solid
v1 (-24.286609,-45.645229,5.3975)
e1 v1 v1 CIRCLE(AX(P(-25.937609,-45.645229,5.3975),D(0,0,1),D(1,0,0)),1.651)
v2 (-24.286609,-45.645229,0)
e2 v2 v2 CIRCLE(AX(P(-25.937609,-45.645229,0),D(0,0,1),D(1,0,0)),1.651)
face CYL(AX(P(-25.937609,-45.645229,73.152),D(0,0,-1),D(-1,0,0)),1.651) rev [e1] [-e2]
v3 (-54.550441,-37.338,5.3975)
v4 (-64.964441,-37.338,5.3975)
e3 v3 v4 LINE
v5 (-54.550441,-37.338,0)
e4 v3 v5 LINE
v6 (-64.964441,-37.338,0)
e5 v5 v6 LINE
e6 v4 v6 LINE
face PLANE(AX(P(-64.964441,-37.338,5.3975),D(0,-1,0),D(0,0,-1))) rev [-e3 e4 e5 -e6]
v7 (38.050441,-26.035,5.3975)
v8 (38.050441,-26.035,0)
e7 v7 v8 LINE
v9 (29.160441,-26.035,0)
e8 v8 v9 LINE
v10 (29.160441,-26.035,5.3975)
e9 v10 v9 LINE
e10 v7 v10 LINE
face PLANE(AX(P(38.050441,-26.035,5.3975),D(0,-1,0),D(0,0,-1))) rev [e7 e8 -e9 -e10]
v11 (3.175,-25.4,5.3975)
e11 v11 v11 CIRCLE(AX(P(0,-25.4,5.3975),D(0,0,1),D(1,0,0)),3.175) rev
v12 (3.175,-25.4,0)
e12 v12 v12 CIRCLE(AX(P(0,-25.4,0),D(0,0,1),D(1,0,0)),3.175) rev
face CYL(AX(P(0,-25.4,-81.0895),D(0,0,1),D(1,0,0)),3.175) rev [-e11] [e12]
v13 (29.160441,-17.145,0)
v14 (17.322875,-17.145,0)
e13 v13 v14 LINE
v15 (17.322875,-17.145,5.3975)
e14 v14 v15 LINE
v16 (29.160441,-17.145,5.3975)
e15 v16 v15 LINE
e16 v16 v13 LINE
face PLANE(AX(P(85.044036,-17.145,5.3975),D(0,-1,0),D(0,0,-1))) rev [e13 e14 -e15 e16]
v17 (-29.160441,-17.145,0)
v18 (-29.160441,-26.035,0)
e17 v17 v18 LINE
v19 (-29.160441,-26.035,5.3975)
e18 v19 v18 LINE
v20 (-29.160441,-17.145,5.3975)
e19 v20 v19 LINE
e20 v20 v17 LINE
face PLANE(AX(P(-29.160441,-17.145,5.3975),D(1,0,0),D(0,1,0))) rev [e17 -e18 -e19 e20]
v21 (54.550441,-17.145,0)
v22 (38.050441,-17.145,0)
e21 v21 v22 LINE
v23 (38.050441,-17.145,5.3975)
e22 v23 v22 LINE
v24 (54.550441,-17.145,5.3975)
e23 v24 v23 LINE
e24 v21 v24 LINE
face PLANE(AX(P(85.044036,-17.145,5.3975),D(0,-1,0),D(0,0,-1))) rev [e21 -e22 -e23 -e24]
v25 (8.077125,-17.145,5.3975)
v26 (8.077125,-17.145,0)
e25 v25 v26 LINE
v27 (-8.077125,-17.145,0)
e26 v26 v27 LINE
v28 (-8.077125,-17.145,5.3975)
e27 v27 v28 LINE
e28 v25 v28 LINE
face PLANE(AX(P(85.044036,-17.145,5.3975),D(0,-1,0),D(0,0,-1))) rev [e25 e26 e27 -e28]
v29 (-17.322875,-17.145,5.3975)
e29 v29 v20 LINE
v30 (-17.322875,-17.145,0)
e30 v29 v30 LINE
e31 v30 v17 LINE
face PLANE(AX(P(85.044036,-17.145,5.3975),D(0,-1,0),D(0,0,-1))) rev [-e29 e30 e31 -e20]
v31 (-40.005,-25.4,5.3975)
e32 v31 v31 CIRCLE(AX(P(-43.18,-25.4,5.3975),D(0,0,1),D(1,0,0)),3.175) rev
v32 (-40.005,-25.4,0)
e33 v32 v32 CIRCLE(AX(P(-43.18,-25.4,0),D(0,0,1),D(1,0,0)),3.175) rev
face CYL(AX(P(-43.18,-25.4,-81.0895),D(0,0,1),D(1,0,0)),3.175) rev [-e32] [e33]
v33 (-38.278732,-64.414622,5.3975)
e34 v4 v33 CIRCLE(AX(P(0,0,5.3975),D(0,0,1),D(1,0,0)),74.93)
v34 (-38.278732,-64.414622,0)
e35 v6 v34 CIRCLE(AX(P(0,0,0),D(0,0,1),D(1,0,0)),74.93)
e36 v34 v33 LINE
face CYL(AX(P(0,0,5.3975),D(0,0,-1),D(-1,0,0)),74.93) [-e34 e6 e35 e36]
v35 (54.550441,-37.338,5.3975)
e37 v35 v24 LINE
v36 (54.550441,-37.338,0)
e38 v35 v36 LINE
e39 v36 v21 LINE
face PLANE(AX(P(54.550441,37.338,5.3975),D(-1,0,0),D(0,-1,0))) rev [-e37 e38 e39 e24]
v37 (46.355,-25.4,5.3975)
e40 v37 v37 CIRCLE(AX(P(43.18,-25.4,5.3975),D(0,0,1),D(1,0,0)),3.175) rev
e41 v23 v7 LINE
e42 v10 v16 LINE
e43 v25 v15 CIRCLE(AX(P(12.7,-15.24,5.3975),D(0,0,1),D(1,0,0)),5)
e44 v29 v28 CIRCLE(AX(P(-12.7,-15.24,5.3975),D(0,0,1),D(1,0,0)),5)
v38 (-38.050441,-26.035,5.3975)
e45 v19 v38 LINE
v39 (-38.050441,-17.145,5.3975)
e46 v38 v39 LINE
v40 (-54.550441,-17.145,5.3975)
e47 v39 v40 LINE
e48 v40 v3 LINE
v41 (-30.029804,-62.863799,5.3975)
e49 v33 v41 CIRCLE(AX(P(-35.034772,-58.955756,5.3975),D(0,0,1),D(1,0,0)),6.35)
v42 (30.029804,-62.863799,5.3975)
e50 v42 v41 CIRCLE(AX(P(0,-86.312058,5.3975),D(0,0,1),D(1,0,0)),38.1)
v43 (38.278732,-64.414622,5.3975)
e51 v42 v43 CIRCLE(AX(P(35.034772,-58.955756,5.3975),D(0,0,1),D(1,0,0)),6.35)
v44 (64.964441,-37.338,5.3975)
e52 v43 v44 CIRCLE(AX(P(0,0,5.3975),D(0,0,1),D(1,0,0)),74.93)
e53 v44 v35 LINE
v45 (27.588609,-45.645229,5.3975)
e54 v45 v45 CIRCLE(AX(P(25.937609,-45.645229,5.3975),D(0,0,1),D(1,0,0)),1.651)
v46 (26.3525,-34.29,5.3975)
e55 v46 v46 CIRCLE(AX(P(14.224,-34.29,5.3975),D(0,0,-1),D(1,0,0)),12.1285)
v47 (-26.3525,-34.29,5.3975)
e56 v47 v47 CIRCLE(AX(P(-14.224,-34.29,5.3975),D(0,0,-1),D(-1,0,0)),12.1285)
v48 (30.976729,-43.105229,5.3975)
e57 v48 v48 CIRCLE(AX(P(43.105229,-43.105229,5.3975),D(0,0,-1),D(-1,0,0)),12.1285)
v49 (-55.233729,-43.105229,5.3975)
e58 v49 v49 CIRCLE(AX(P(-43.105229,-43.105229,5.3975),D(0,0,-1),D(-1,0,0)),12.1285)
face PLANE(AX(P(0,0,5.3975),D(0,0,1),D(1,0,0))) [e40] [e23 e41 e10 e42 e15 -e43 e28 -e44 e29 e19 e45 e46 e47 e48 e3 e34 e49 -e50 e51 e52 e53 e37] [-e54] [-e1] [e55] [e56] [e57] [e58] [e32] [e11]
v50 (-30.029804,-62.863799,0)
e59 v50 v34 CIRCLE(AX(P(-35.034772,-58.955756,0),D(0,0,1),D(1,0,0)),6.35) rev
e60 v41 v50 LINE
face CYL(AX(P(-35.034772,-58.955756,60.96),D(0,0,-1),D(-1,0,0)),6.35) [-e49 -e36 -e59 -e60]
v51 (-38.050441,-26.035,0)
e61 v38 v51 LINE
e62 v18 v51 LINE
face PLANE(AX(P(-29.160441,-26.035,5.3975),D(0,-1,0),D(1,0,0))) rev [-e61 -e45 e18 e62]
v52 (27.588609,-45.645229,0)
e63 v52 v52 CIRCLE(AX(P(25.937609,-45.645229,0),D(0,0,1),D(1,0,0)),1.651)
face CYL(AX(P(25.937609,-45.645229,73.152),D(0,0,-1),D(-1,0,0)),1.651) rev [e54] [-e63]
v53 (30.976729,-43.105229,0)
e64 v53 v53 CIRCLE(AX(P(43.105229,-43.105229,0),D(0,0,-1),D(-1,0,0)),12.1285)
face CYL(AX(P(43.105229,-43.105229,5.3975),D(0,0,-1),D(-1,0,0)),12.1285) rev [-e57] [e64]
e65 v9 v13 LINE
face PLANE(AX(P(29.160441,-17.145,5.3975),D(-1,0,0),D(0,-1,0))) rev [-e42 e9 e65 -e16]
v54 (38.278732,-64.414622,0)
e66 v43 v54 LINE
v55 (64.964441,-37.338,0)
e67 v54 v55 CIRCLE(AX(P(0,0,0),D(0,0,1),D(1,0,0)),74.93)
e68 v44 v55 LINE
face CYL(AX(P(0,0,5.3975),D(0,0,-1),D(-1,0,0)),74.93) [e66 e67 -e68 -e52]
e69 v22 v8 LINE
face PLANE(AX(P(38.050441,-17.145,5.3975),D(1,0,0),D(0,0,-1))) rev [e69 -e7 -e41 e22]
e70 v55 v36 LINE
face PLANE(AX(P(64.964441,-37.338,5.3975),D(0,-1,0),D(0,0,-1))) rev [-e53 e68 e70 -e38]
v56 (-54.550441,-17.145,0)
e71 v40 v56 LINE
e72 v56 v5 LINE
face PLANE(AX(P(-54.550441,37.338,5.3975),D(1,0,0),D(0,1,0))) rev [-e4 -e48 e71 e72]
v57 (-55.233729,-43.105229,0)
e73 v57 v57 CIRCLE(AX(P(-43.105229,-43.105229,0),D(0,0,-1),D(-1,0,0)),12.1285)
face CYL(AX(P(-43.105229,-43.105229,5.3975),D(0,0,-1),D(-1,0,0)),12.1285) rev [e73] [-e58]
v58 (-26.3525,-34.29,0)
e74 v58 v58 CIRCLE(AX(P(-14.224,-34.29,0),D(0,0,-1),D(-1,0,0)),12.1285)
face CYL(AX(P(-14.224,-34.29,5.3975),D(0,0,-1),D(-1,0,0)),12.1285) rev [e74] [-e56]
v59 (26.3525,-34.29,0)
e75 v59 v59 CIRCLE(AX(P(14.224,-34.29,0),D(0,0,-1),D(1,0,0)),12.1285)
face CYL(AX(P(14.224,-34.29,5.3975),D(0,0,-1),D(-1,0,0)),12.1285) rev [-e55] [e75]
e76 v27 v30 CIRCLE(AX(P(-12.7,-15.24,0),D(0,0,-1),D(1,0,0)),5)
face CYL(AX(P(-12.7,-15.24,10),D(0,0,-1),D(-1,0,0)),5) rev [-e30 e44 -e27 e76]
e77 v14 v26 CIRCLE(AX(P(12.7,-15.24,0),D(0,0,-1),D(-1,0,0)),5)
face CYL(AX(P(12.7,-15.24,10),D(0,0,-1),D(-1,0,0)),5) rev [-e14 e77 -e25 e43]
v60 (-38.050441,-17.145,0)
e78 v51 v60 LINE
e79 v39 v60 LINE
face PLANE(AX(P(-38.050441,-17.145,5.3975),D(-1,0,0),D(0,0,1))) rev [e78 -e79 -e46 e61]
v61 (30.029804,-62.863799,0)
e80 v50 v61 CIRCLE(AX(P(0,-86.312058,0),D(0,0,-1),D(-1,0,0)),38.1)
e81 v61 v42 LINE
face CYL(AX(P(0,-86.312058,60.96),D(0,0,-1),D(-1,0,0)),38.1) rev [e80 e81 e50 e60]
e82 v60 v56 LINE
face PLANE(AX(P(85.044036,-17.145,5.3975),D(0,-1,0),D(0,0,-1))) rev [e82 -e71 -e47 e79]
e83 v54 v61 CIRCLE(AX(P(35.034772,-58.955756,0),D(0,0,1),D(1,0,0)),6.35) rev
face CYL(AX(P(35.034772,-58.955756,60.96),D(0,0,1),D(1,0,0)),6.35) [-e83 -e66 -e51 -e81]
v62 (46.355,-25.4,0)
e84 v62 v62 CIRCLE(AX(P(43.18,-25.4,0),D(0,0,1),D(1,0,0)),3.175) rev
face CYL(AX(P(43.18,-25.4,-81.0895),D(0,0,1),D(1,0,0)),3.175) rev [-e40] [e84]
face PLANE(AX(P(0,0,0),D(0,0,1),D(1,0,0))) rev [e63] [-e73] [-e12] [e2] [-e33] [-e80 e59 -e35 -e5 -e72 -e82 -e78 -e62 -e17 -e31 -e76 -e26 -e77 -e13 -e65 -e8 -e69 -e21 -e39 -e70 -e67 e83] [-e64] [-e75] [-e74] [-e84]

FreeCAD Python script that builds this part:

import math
import FreeCAD as App
import Part
import Sketcher
Q = App.Units.Quantity


def edges_at(feature, points):
    """Names of the edges that pass closest to the given points."""
    edges = feature.Shape.Edges
    near = lambda p: min(range(len(edges)), key=lambda i: edges[i].distToShape(Part.Vertex(*p))[0])
    return sorted({f"Edge{near(p) + 1}" for p in points})

doc = App.newDocument("Part")
body = doc.addObject("PartDesign::Body", "Body")

# Sketch on XY plane
sketch1 = body.newObject("Sketcher::SketchObject", "Sketch")
sketch1.AttachmentSupport = (doc.getObject("XY_Plane"), [""])
sketch1.MapMode = "FlatFace"
sketch1.addGeometry([
    Part.LineSegment(App.Vector(-64.964441, 37.338, 0), App.Vector(-54.550441, 37.338, 0)),  # 0
    Part.LineSegment(App.Vector(-54.550441, 37.338, 0), App.Vector(-54.550441, -37.338, 0)),  # 1
    Part.LineSegment(App.Vector(-54.550441, -37.338, 0), App.Vector(-64.964441, -37.338, 0)),  # 2
    Part.ArcOfCircle(Part.Circle(App.Vector(0, 0, 0), App.Vector(0, 0, 1), 74.93), math.radians(-150.112071), math.radians(-29.887929)),  # 3
    Part.LineSegment(App.Vector(64.964441, -37.338, 0), App.Vector(54.550441, -37.338, 0)),  # 4
    Part.LineSegment(App.Vector(54.550441, -37.338, 0), App.Vector(54.550441, 37.338, 0)),  # 5
    Part.LineSegment(App.Vector(54.550441, 37.338, 0), App.Vector(64.964441, 37.338, 0)),  # 6
    Part.ArcOfCircle(Part.Circle(App.Vector(0, 0, 0), App.Vector(0, 0, 1), 74.93), math.radians(29.887929), math.radians(150.112071)),  # 7
    Part.Circle(App.Vector(-46.482, -11.049, 0), App.Vector(0, 0, 1), 1.651),  # 8
    Part.Circle(App.Vector(-21.08327, -10.795, 0), App.Vector(0, 0, 1), 1.651),  # 9
    Part.Circle(App.Vector(21.08327, -10.795, 0), App.Vector(0, 0, 1), 1.651),  # 10
    Part.Circle(App.Vector(46.482, -11.049, 0), App.Vector(0, 0, 1), 1.651),  # 11
    Part.Circle(App.Vector(-46.482, 11.049, 0), App.Vector(0, 0, 1), 1.651),  # 12
    Part.Circle(App.Vector(-21.08327, 10.795, 0), App.Vector(0, 0, 1), 1.651),  # 13
    Part.Circle(App.Vector(21.08327, 10.795, 0), App.Vector(0, 0, 1), 1.651),  # 14
    Part.Circle(App.Vector(46.482, 11.049, 0), App.Vector(0, 0, 1), 1.651),  # 15
], False)
sketch1.addConstraint([
    Sketcher.Constraint("Coincident", 0, 2, 1, 1),
    Sketcher.Constraint("Coincident", 1, 2, 2, 1),
    Sketcher.Constraint("Coincident", 2, 2, 3, 1),
    Sketcher.Constraint("Coincident", 3, 2, 4, 1),
    Sketcher.Constraint("Coincident", 4, 2, 5, 1),
    Sketcher.Constraint("Coincident", 5, 2, 6, 1),
    Sketcher.Constraint("Coincident", 6, 2, 7, 1),
    Sketcher.Constraint("Coincident", 7, 2, 0, 1),
    Sketcher.Constraint("Horizontal", 0),
    Sketcher.Constraint("Vertical", 1),
    Sketcher.Constraint("Horizontal", 2),
    Sketcher.Constraint("Horizontal", 4),
    Sketcher.Constraint("Vertical", 5),
    Sketcher.Constraint("Horizontal", 6),
    Sketcher.Constraint("Coincident", 3, 3, -1, 1),
    Sketcher.Constraint("Coincident", 7, 3, -1, 1),
    Sketcher.Constraint("Equal", 3, 7),
    Sketcher.Constraint("Equal", 8, 9),
    Sketcher.Constraint("Equal", 9, 10),
    Sketcher.Constraint("Equal", 10, 11),
    Sketcher.Constraint("Equal", 11, 12),
    Sketcher.Constraint("Equal", 12, 13),
    Sketcher.Constraint("Equal", 13, 14),
    Sketcher.Constraint("Equal", 14, 15),
    Sketcher.Constraint("Symmetric", 11, 3, 12, 3, -1, 1),
    Sketcher.Constraint("Symmetric", 10, 3, 13, 3, -1, 1),
    Sketcher.Constraint("Symmetric", 9, 3, 14, 3, -1, 1),
    Sketcher.Constraint("Symmetric", 8, 3, 15, 3, -1, 1),
    Sketcher.Constraint("Symmetric", 0, 2, 4, 2, -1, 1),
    Sketcher.Constraint("Symmetric", 9, 3, 10, 3, -2),
    Sketcher.Constraint("Symmetric", 8, 3, 11, 3, -2),
    Sketcher.Constraint("Horizontal", 2, 2, 3, 2),
    Sketcher.Constraint("Horizontal", 0, 2, 5, 2),
    Sketcher.Constraint("Diameter", 8, Q("0.13 in")),
    Sketcher.Constraint("Radius", 3, Q("2.95 in")),
    Sketcher.Constraint("DistanceX", 0, 1, 0, 2, Q("0.41 in")),
    Sketcher.Constraint("DistanceY", 1, 2, 1, 1, Q("2.94 in")),
    Sketcher.Constraint("DistanceX", 8, 3, -1, 1, Q("1.83 in")),
    Sketcher.Constraint("DistanceY", 8, 3, 9, 3, Q("0.01 in")),
    Sketcher.Constraint("DistanceY", 8, 3, 12, 3, Q("0.87 in")),
    Sketcher.Constraint("DistanceX", 9, 3, 10, 3, Q("1.6601 in")),
])
pad1 = body.newObject("PartDesign::Pad", "Pad")
pad1.Profile = sketch1
pad1.Length = Q("0.2125 in")

# Sketch on XY plane
sketch2 = body.newObject("Sketcher::SketchObject", "Sketch001")
sketch2.AttachmentSupport = (doc.getObject("XY_Plane"), [""])
sketch2.MapMode = "FlatFace"
sketch2.AttachmentOffset = App.Placement(App.Vector(0, 0, 0.2125 * 25.4), App.Rotation())
sketch2.addGeometry([
    Part.Circle(App.Vector(-6.731, 62.23, 0), App.Vector(0, 0, 1), 1.143),
    Part.Circle(App.Vector(6.731, 62.23, 0), App.Vector(0, 0, 1), 1.143),
], False)
sketch2.addConstraint([
    Sketcher.Constraint("Equal", 0, 1),
    Sketcher.Constraint("Symmetric", 0, 3, 1, 3, -2),
    Sketcher.Constraint("Diameter", 0, Q("0.09 in")),
    Sketcher.Constraint("DistanceY", -1, 1, 0, 3, Q("2.45 in")),
    Sketcher.Constraint("DistanceX", 0, 3, 1, 3, Q("0.53 in")),
])
pocket1 = body.newObject("PartDesign::Pocket", "Pocket")
pocket1.Profile = sketch2
pocket1.Type = "ThroughAll"

# Sketch on XY plane
sketch3 = body.newObject("Sketcher::SketchObject", "Sketch002")
sketch3.AttachmentSupport = (doc.getObject("XY_Plane"), [""])
sketch3.MapMode = "FlatFace"
sketch3.addGeometry([
    Part.Circle(App.Vector(43.105229, -43.105229, 0), App.Vector(0, 0, 1), 12.1285),  # 0
    Part.Circle(App.Vector(-14.224, -34.29, 0), App.Vector(0, 0, 1), 12.1285),  # 1
    Part.Circle(App.Vector(-14.224, 34.29, 0), App.Vector(0, 0, 1), 12.1285),  # 2
    Part.Circle(App.Vector(43.105229, 43.105229, 0), App.Vector(0, 0, 1), 12.1285),  # 3
    Part.Circle(App.Vector(-43.105229, 43.105229, 0), App.Vector(0, 0, 1), 12.1285),  # 4
    Part.Circle(App.Vector(14.224, 34.29, 0), App.Vector(0, 0, 1), 12.1285),  # 5
    Part.Circle(App.Vector(14.224, -34.29, 0), App.Vector(0, 0, 1), 12.1285),  # 6
    Part.Circle(App.Vector(-43.105229, -43.105229, 0), App.Vector(0, 0, 1), 12.1285),  # 7
], False)
sketch3.addConstraint([
    Sketcher.Constraint("Equal", 0, 1),
    Sketcher.Constraint("Equal", 1, 2),
    Sketcher.Constraint("Equal", 2, 3),
    Sketcher.Constraint("Equal", 3, 4),
    Sketcher.Constraint("Equal", 4, 5),
    Sketcher.Constraint("Equal", 5, 6),
    Sketcher.Constraint("Equal", 6, 7),
    Sketcher.Constraint("Symmetric", 0, 3, 4, 3, -1, 1),
    Sketcher.Constraint("Symmetric", 1, 3, 5, 3, -1, 1),
    Sketcher.Constraint("Symmetric", 2, 3, 6, 3, -1, 1),
    Sketcher.Constraint("Symmetric", 3, 3, 7, 3, -1, 1),
    Sketcher.Constraint("Symmetric", 3, 3, 4, 3, -2),
    Sketcher.Constraint("Symmetric", 2, 3, 5, 3, -2),
    Sketcher.Constraint("Diameter", 0, Q("0.955 in")),
    Sketcher.Constraint("DistanceY", 1, 3, 2, 3, Q("2.7 in")),
    Sketcher.Constraint("DistanceX", 1, 3, -1, 1, Q("0.56 in")),
    Sketcher.Constraint("DistanceX", -1, 1, 0, 3, 43.105229),
    Sketcher.Constraint("DistanceY", 0, 3, -1, 1, 43.105229),
])
pocket2 = body.newObject("PartDesign::Pocket", "Pocket001")
pocket2.Profile = sketch3
pocket2.Type = "ThroughAll"
pocket2.Reversed = True

# Sketch on XY plane
sketch4 = body.newObject("Sketcher::SketchObject", "Sketch003")
sketch4.AttachmentSupport = (doc.getObject("XY_Plane"), [""])
sketch4.MapMode = "FlatFace"
sketch4.addGeometry([
    Part.LineSegment(App.Vector(15.770167, 67.991292, 0), App.Vector(15.770167, 56.313788, 0)),
    Part.LineSegment(App.Vector(15.770167, 56.313788, 0), App.Vector(-12.792547, 56.313788, 0)),
    Part.LineSegment(App.Vector(-12.792547, 56.313788, 0), App.Vector(-12.792547, 67.991292, 0)),
    Part.LineSegment(App.Vector(-12.792547, 67.991292, 0), App.Vector(15.770167, 67.991292, 0)),
], False)
sketch4.addConstraint([
    Sketcher.Constraint("Coincident", 0, 2, 1, 1),
    Sketcher.Constraint("Coincident", 1, 2, 2, 1),
    Sketcher.Constraint("Coincident", 2, 2, 3, 1),
    Sketcher.Constraint("Coincident", 3, 2, 0, 1),
    Sketcher.Constraint("Vertical", 0),
    Sketcher.Constraint("Horizontal", 1),
    Sketcher.Constraint("Vertical", 2),
    Sketcher.Constraint("Horizontal", 3),
    Sketcher.Constraint("DistanceX", 1, 2, 1, 1, 28.562713),
    Sketcher.Constraint("DistanceY", 0, 2, 0, 1, 11.677504),
    Sketcher.Constraint("DistanceY", -1, 1, 0, 2, 56.313788),
    Sketcher.Constraint("DistanceX", -1, 1, 0, 2, 15.770167),
])
pad2 = body.newObject("PartDesign::Pad", "Pad001")
pad2.Profile = sketch4
pad2.Length = Q("0.2125 in")

# Sketch on XY plane
sketch5 = body.newObject("Sketcher::SketchObject", "Sketch004")
sketch5.AttachmentSupport = (doc.getObject("XY_Plane"), [""])
sketch5.MapMode = "FlatFace"
sketch5.addGeometry([
    Part.LineSegment(App.Vector(85.044036, 113.424221, 0), App.Vector(85.044036, -17.145, 0)),
    Part.LineSegment(App.Vector(85.044036, -17.145, 0), App.Vector(-131.677413, -17.145, 0)),
    Part.LineSegment(App.Vector(-131.677413, -17.145, 0), App.Vector(-131.677413, 113.424221, 0)),
    Part.LineSegment(App.Vector(-131.677413, 113.424221, 0), App.Vector(85.044036, 113.424221, 0)),
], False)
sketch5.addConstraint([
    Sketcher.Constraint("Coincident", 0, 2, 1, 1),
    Sketcher.Constraint("Coincident", 1, 2, 2, 1),
    Sketcher.Constraint("Coincident", 2, 2, 3, 1),
    Sketcher.Constraint("Coincident", 3, 2, 0, 1),
    Sketcher.Constraint("Vertical", 0),
    Sketcher.Constraint("Horizontal", 1),
    Sketcher.Constraint("Vertical", 2),
    Sketcher.Constraint("Horizontal", 3),
    Sketcher.Constraint("DistanceY", 0, 2, -1, 1, Q("0.675 in")),
    Sketcher.Constraint("DistanceX", 1, 2, 1, 1, 216.721449),
    Sketcher.Constraint("DistanceY", 0, 2, 0, 1, 130.569221),
    Sketcher.Constraint("DistanceX", -1, 1, 0, 2, 85.044036),
])
pocket3 = body.newObject("PartDesign::Pocket", "Pocket002")
pocket3.Profile = sketch5
pocket3.Type = "ThroughAll"
pocket3.Reversed = True

# Sketch on XY plane
sketch6 = body.newObject("Sketcher::SketchObject", "Sketch005")
sketch6.AttachmentSupport = (doc.getObject("XY_Plane"), [""])
sketch6.MapMode = "FlatFace"
sketch6.addGeometry(Part.Circle(App.Vector(0, -86.312058, 0), App.Vector(0, 0, 1), 38.1), False)
sketch6.addConstraint([
    Sketcher.Constraint("PointOnObject", 0, 3, -2),
    Sketcher.Constraint("Diameter", 0, Q("3 in")),
    Sketcher.Constraint("DistanceY", 0, 3, -1, 1, 86.312058),
])
pocket4 = body.newObject("PartDesign::Pocket", "Pocket003")
pocket4.Profile = sketch6
pocket4.Length = Q("2.4 in")
pocket4.Reversed = True
doc.recompute()

fillet = body.newObject("PartDesign::Fillet", "Fillet")
fillet.Base = (pocket4, edges_at(pocket4, [(-33.001, -67.271, 2.699)]))
fillet.Radius = Q("0.25 in")
doc.recompute()

fillet2 = body.newObject("PartDesign::Fillet", "Fillet001")
fillet2.Base = (fillet, edges_at(fillet, [(33.001, -67.271, 2.699)]))
fillet2.Radius = Q("0.25 in")

# Sketch on XY plane
sketch7 = body.newObject("Sketcher::SketchObject", "Sketch006")
sketch7.AttachmentSupport = (doc.getObject("XY_Plane"), [""])
sketch7.MapMode = "FlatFace"
sketch7.addGeometry([
    Part.LineSegment(App.Vector(38.050441, -17.145, 0), App.Vector(38.050441, -26.035, 0)),  # 0
    Part.LineSegment(App.Vector(38.050441, -26.035, 0), App.Vector(29.160441, -26.035, 0)),  # 1
    Part.LineSegment(App.Vector(29.160441, -26.035, 0), App.Vector(29.160441, -17.145, 0)),  # 2
    Part.LineSegment(App.Vector(29.160441, -17.145, 0), App.Vector(38.050441, -17.145, 0)),  # 3
    Part.LineSegment(App.Vector(-29.160441, -17.145, 0), App.Vector(-29.160441, -26.035, 0)),  # 4
    Part.LineSegment(App.Vector(-29.160441, -26.035, 0), App.Vector(-38.050441, -26.035, 0)),  # 5
    Part.LineSegment(App.Vector(-38.050441, -26.035, 0), App.Vector(-38.050441, -17.145, 0)),  # 6
    Part.LineSegment(App.Vector(-38.050441, -17.145, 0), App.Vector(-29.160441, -17.145, 0)),  # 7
], False)
sketch7.addConstraint([
    Sketcher.Constraint("Coincident", 0, 2, 1, 1),
    Sketcher.Constraint("Coincident", 1, 2, 2, 1),
    Sketcher.Constraint("Coincident", 2, 2, 3, 1),
    Sketcher.Constraint("Coincident", 3, 2, 0, 1),
    Sketcher.Constraint("Coincident", 4, 2, 5, 1),
    Sketcher.Constraint("Coincident", 5, 2, 6, 1),
    Sketcher.Constraint("Coincident", 6, 2, 7, 1),
    Sketcher.Constraint("Coincident", 7, 2, 4, 1),
    Sketcher.Constraint("Vertical", 0),
    Sketcher.Constraint("Horizontal", 1),
    Sketcher.Constraint("Vertical", 2),
    Sketcher.Constraint("Horizontal", 3),
    Sketcher.Constraint("Vertical", 4),
    Sketcher.Constraint("Horizontal", 5),
    Sketcher.Constraint("Vertical", 6),
    Sketcher.Constraint("Horizontal", 7),
    Sketcher.Constraint("Symmetric", 1, 2, 4, 2, -2),
    Sketcher.Constraint("Symmetric", 3, 2, 6, 2, -2),
    Sketcher.Constraint("Equal", 7, 0),
    Sketcher.Constraint("DistanceX", 1, 2, 1, 1, Q("0.35 in")),
    Sketcher.Constraint("DistanceY", 0, 2, -1, 1, Q("1.025 in")),
    Sketcher.Constraint("DistanceX", -1, 1, 0, 2, 38.050441),
])
pocket5 = body.newObject("PartDesign::Pocket", "Pocket004")
pocket5.Profile = sketch7
pocket5.Type = "ThroughAll"
pocket5.Reversed = True

# Sketch on XY plane
sketch8 = body.newObject("Sketcher::SketchObject", "Sketch007")
sketch8.AttachmentSupport = (doc.getObject("XY_Plane"), [""])
sketch8.MapMode = "FlatFace"
sketch8.addGeometry([
    Part.Circle(App.Vector(12.7, -15.24, 0), App.Vector(0, 0, 1), 5),
    Part.Circle(App.Vector(-12.7, -15.24, 0), App.Vector(0, 0, 1), 5),
], False)
sketch8.addConstraint([
    Sketcher.Constraint("Equal", 0, 1),
    Sketcher.Constraint("Symmetric", 0, 3, 1, 3, -2),
    Sketcher.Constraint("DistanceX", 1, 3, 0, 3, Q("1 in")),
    Sketcher.Constraint("DistanceY", 0, 3, -1, 1, Q("0.6 in")),
    Sketcher.Constraint("Diameter", 0, 10.0),
])
pocket6 = body.newObject("PartDesign::Pocket", "Pocket005")
pocket6.Profile = sketch8
pocket6.Length = 10
pocket6.Reversed = True

# Sketch on XY plane
sketch9 = body.newObject("Sketcher::SketchObject", "Sketch008")
sketch9.AttachmentSupport = (doc.getObject("XY_Plane"), [""])
sketch9.MapMode = "FlatFace"
sketch9.AttachmentOffset = App.Placement(App.Vector(0, 0, 0.8775 * 25.4), App.Rotation())
sketch9.addGeometry([
    Part.Circle(App.Vector(-43.18, -25.4, 0), App.Vector(0, 0, 1), 3.175),
    Part.Circle(App.Vector(0, -25.4, 0), App.Vector(0, 0, 1), 3.175),
    Part.Circle(App.Vector(43.18, -25.4, 0), App.Vector(0, 0, 1), 3.175),
], False)
sketch9.addConstraint([
    Sketcher.Constraint("Equal", 0, 1),
    Sketcher.Constraint("Equal", 1, 2),
    Sketcher.Constraint("Symmetric", 0, 3, 2, 3, -2),
    Sketcher.Constraint("PointOnObject", 1, 3, -2),
    Sketcher.Constraint("Horizontal", 0, 3, 1, 3),
    Sketcher.Constraint("Diameter", 0, Q("0.25 in")),
    Sketcher.Constraint("DistanceY", 0, 3, -1, 1, Q("1 in")),
    Sketcher.Constraint("DistanceX", 0, 3, -1, 1, Q("1.7 in")),
])
pocket7 = body.newObject("PartDesign::Pocket", "Pocket006")
pocket7.Profile = sketch9
pocket7.Type = "ThroughAll"
pocket7.Midplane = True

# Sketch on XY plane
sketch10 = body.newObject("Sketcher::SketchObject", "Sketch009")
sketch10.AttachmentSupport = (doc.getObject("XY_Plane"), [""])
sketch10.MapMode = "FlatFace"
sketch10.AttachmentOffset = App.Placement(App.Vector(0, 0, -0.97 * 25.4), App.Rotation())
sketch10.addGeometry([
    Part.Circle(App.Vector(25.937609, -45.645229, 0), App.Vector(0, 0, 1), 1.651),
    Part.Circle(App.Vector(-25.937609, -45.645229, 0), App.Vector(0, 0, 1), 1.651),
], False)
sketch10.addConstraint([
    Sketcher.Constraint("Equal", 0, 1),
    Sketcher.Constraint("Symmetric", 0, 3, 1, 3, -2),
    Sketcher.Constraint("Diameter", 0, Q("0.13 in")),
    Sketcher.Constraint("DistanceX", -1, 1, 0, 3, 25.937609),
    Sketcher.Constraint("DistanceY", 0, 3, -1, 1, 45.645229),
])
pocket8 = body.newObject("PartDesign::Pocket", "Pocket007")
pocket8.Profile = sketch10
pocket8.Length = Q("3.85 in")
pocket8.Reversed = True

doc.recompute()
